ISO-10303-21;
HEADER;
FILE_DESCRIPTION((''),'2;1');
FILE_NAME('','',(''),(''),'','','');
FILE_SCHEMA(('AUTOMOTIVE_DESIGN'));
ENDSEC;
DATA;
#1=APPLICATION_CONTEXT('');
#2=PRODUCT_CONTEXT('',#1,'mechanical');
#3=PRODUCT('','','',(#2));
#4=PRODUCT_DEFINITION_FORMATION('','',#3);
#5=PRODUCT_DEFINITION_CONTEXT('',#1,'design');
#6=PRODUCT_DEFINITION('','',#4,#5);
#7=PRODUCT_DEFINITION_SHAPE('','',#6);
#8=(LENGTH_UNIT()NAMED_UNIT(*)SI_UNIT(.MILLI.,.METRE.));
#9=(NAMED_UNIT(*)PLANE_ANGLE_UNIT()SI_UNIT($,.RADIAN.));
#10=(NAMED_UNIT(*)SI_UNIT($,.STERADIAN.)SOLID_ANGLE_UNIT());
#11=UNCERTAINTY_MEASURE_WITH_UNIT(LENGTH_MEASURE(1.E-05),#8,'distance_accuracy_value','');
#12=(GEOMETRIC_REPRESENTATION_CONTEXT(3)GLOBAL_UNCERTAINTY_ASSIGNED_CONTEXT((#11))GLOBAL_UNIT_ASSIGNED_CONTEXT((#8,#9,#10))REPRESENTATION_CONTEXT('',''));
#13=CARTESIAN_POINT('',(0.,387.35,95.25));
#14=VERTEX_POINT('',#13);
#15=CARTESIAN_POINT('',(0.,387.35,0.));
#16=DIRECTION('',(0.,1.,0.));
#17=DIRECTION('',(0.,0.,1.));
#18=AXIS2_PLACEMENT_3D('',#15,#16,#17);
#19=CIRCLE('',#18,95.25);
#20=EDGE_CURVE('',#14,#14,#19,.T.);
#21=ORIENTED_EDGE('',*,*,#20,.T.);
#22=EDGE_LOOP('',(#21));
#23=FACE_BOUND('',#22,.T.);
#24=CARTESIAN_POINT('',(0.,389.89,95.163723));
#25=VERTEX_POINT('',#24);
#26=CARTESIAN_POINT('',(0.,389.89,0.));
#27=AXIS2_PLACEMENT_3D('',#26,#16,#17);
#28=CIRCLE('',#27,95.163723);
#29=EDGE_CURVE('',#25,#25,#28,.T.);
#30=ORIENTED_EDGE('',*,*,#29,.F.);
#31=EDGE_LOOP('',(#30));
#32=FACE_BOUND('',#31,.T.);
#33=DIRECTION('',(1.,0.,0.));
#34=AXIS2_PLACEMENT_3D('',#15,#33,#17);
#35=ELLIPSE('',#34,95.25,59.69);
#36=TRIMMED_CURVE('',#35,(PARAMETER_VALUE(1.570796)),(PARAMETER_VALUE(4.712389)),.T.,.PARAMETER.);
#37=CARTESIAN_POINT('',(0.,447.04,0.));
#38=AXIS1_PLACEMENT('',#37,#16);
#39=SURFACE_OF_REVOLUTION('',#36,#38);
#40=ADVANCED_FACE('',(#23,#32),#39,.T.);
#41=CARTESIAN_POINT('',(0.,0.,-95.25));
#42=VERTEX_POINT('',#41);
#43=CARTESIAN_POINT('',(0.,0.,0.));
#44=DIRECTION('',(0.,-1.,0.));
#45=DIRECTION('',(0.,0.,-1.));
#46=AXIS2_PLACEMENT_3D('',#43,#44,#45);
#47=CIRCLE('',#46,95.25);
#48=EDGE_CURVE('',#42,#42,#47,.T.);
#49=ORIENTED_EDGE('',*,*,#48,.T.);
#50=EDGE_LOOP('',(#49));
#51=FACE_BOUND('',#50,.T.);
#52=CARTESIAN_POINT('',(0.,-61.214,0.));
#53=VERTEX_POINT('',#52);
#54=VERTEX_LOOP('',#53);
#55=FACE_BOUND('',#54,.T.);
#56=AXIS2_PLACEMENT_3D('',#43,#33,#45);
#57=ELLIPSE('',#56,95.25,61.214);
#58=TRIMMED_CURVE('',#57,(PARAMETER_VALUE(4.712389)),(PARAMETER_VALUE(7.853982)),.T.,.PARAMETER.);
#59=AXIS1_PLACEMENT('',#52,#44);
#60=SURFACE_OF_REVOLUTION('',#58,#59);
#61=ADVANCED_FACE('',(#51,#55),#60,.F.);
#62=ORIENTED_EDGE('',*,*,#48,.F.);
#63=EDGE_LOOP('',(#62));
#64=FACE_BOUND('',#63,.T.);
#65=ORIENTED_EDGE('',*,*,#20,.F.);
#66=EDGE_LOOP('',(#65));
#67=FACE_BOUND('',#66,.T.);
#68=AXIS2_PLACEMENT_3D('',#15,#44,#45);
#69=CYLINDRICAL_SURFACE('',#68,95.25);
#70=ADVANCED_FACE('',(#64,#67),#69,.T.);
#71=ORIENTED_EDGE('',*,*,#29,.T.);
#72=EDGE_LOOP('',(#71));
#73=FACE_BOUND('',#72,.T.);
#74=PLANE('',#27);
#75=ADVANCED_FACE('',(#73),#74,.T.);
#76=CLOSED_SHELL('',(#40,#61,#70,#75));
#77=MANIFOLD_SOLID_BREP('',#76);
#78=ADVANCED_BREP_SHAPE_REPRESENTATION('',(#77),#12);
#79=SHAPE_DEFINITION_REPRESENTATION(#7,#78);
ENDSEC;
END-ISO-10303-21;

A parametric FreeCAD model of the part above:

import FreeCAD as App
import Part
import Sketcher
from FreeCAD import Vector
Q = App.Units.Quantity

doc = App.newDocument("Part")
params = doc.addObject("Spreadsheet::Sheet", "Params")
for row, (alias, value) in enumerate([
    ("sketch1_diameter", "7.5 in"),
    ("pad1_length", "15.25 in"),
    ("revolution_angle", "360 deg"),
    ("revolution2_angle", "360 deg"),
    ("sketch4_diameter", "7.5 in"),
    ("pocket1_length", "2.25 in"),
], start=1):
    params.set(f"A{row}", alias)
    params.set(f"B{row}", "=" + value)
    params.setAlias(f"B{row}", alias)

body = doc.addObject("PartDesign::Body", "Body")

# Sketch on XZ plane
sketch1 = doc.addObject("Sketcher::SketchObject", "Sketch")
body.addObject(sketch1)
sketch1.AttachmentSupport = (doc.XZ_Plane, [""])
sketch1.MapMode = "FlatFace"
sketch1.addGeometry(Part.Circle(Vector(0, 0, 0), Vector(0, 0, 1), 95), False)
sketch1.addConstraint(Sketcher.Constraint("Coincident", 0, 3, -1, 1))
sketch1.addConstraint(Sketcher.Constraint("Diameter", 0, Q("7.5 in")))
sketch1.setExpression("Constraints[1]", "Params.sketch1_diameter")
pad1 = doc.addObject("PartDesign::Pad", "Pad")
body.addObject(pad1)
pad1.Profile = sketch1
pad1.setExpression("Length", "Params.pad1_length")
pad1.Reversed = True

# Sketch on YZ plane
sketch2 = doc.addObject("Sketcher::SketchObject", "Sketch001")
body.addObject(sketch2)
sketch2.AttachmentSupport = (doc.YZ_Plane, [""])
sketch2.MapMode = "FlatFace"
sketch2.addGeometry(Part.LineSegment(Vector(447.04, 0, 0), Vector(387.35, 0, 0)), False)
sketch2.addGeometry(Part.LineSegment(Vector(387.35, 0, 0), Vector(387.35, -95.25, 0)), False)
sketch2.addGeometry(Part.BSplineCurve([Vector(387.35, -95.25, 0), Vector(447.04, -95.25, 0), Vector(447.04, 0, 0)], [3, 3], [3.141592654, 4.71238898], False, 2, [1, 0.707106781, 1], False), False)
sketch2.addConstraint(Sketcher.Constraint("Block", 2))
sketch2.addConstraint(Sketcher.Constraint("Coincident", 0, 2, 1, 1))
sketch2.addConstraint(Sketcher.Constraint("Coincident", 1, 2, 2, 1))
sketch2.addConstraint(Sketcher.Constraint("Coincident", 2, 2, 0, 1))
sketch2.addConstraint(Sketcher.Constraint("Horizontal", 0))
sketch2.addConstraint(Sketcher.Constraint("Vertical", 1))
revolution = doc.addObject("PartDesign::Revolution", "Revolution")
body.addObject(revolution)
revolution.Profile = sketch2
revolution.ReferenceAxis = (sketch2, ["H_Axis"])
revolution.setExpression("Angle", "Params.revolution_angle")

# Sketch on YZ plane
sketch3 = doc.addObject("Sketcher::SketchObject", "Sketch002")
body.addObject(sketch3)
sketch3.AttachmentSupport = (doc.YZ_Plane, [""])
sketch3.MapMode = "FlatFace"
sketch3.addGeometry(Part.LineSegment(Vector(0, 0, 0), Vector(-61.214, 0, 0)), False)
sketch3.addGeometry(Part.BSplineCurve([Vector(-61.214, 0, 0), Vector(-61.214, -95.25, 0), Vector(0, -95.25, 0)], [3, 3], [4.71238898, 6.283185307], False, 2, [1, 0.707106781, 1], False), False)
sketch3.addGeometry(Part.LineSegment(Vector(0, -95.25, 0), Vector(0, 0, 0)), False)
sketch3.addConstraint(Sketcher.Constraint("Block", 1))
sketch3.addConstraint(Sketcher.Constraint("Coincident", 0, 2, 1, 1))
sketch3.addConstraint(Sketcher.Constraint("Coincident", 1, 2, 2, 1))
sketch3.addConstraint(Sketcher.Constraint("Coincident", 2, 2, 0, 1))
sketch3.addConstraint(Sketcher.Constraint("Horizontal", 0))
sketch3.addConstraint(Sketcher.Constraint("Vertical", 2))
revolution2 = doc.addObject("PartDesign::Revolution", "Revolution001")
body.addObject(revolution2)
revolution2.Profile = sketch3
revolution2.ReferenceAxis = (sketch3, ["H_Axis"])
revolution2.setExpression("Angle", "Params.revolution2_angle")

# Sketch on XZ plane
sketch4 = doc.addObject("Sketcher::SketchObject", "Sketch003")
body.addObject(sketch4)
sketch4.AttachmentSupport = (doc.XZ_Plane, [""])
sketch4.MapMode = "FlatFace"
sketch4.AttachmentOffset = App.Placement(Vector(0, 0, -17.6 * 25.4), App.Rotation())
sketch4.addGeometry(Part.Circle(Vector(0, 0, 0), Vector(0, 0, 1), 95), False)
sketch4.addConstraint(Sketcher.Constraint("Coincident", 0, 3, -1, 1))
sketch4.addConstraint(Sketcher.Constraint("Diameter", 0, Q("7.5 in")))
sketch4.setExpression("Constraints[1]", "Params.sketch4_diameter")
pocket1 = doc.addObject("PartDesign::Pocket", "Pocket")
body.addObject(pocket1)
pocket1.Profile = sketch4
pocket1.setExpression("Length", "Params.pocket1_length")
pocket1.Reversed = True

doc.recompute()
